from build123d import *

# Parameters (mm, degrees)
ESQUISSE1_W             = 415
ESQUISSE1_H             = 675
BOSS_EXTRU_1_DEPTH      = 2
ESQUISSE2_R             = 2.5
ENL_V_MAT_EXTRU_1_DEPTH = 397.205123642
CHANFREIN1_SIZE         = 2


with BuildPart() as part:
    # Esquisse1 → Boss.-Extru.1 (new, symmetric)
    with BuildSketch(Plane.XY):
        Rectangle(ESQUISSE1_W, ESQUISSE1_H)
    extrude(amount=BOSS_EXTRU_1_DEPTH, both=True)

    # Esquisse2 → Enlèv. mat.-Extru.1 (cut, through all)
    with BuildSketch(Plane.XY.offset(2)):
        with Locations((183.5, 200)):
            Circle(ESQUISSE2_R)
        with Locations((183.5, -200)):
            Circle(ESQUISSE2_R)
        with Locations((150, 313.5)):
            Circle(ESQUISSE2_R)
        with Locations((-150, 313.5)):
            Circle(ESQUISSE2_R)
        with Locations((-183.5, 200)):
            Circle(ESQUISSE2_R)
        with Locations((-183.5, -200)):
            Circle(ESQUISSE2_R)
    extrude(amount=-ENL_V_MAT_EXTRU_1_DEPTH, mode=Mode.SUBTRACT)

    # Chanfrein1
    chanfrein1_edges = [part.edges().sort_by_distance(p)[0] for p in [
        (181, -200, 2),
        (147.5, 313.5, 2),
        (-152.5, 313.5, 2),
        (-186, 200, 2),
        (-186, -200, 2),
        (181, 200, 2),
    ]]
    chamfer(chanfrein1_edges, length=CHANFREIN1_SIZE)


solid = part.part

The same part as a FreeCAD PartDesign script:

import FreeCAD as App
import Part
import Sketcher
from FreeCAD import Vector


def edges_at(feature, points):
    """Names of the edges that pass closest to the given points."""
    edges = feature.Shape.Edges
    near = lambda p: min(range(len(edges)), key=lambda i: edges[i].distToShape(Part.Vertex(*p))[0])
    return sorted({f"Edge{near(p) + 1}" for p in points})


def add_polygon(sketch, points):
    """Adds a closed chain of lines whose ends are joined by coincident constraints."""
    first, n = sketch.GeometryCount, len(points)
    for a, b in zip(points, points[1:] + points[:1]):
        sketch.addGeometry(Part.LineSegment(App.Vector(*a, 0), App.Vector(*b, 0)), False)
    for i in range(n):
        sketch.addConstraint(Sketcher.Constraint("Coincident", first + i, 2, first + (i + 1) % n, 1))

doc = App.newDocument("Part")
body = doc.addObject("PartDesign::Body", "Body")

sketch1 = doc.addObject("Sketcher::SketchObject", "Sketch")
body.addObject(sketch1)
sketch1.AttachmentSupport = (doc.XY_Plane, [""])
sketch1.MapMode = "FlatFace"
add_polygon(sketch1, [(-208, 338), (-208, -338), (208, -338), (208, 338)])
sketch1.addConstraint([
    Sketcher.Constraint("Vertical", 0),
    Sketcher.Constraint("Horizontal", 1),
    Sketcher.Constraint("Vertical", 2),
    Sketcher.Constraint("Horizontal", 3),
    Sketcher.Constraint("Symmetric", 0, 2, 2, 2, -1, 1),
    Sketcher.Constraint("DistanceX", 1, 1, 1, 2, 415.0),
    Sketcher.Constraint("DistanceY", 0, 2, 0, 1, 675.0),
])
pad1 = doc.addObject("PartDesign::Pad", "Pad")
body.addObject(pad1)
pad1.Profile = sketch1
pad1.Length = 4
pad1.Midplane = True

sketch2 = doc.addObject("Sketcher::SketchObject", "Sketch001")
body.addObject(sketch2)
sketch2.AttachmentSupport = (doc.XY_Plane, [""])
sketch2.MapMode = "FlatFace"
sketch2.AttachmentOffset = App.Placement(Vector(0, 0, 2), App.Rotation())
sketch2.addGeometry([
    Part.Circle(Vector(183.5, 200, 0), Vector(0, 0, 1), 2.5),
    Part.Circle(Vector(183.5, -200, 0), Vector(0, 0, 1), 2.5),
    Part.Circle(Vector(150, 313.5, 0), Vector(0, 0, 1), 2.5),
    Part.Circle(Vector(-150, 313.5, 0), Vector(0, 0, 1), 2.5),
    Part.Circle(Vector(-183.5, 200, 0), Vector(0, 0, 1), 2.5),
    Part.Circle(Vector(-183.5, -200, 0), Vector(0, 0, 1), 2.5),
], False)
sketch2.addConstraint([
    Sketcher.Constraint("Equal", 0, 1),
    Sketcher.Constraint("Equal", 1, 2),
    Sketcher.Constraint("Equal", 2, 3),
    Sketcher.Constraint("Equal", 3, 4),
    Sketcher.Constraint("Equal", 4, 5),
    Sketcher.Constraint("Symmetric", 1, 3, 4, 3, -1, 1),
    Sketcher.Constraint("Symmetric", 0, 3, 5, 3, -1, 1),
    Sketcher.Constraint("Symmetric", 2, 3, 3, 3, -2),
    Sketcher.Constraint("Symmetric", 0, 3, 4, 3, -2),
    Sketcher.Constraint("Diameter", 0, 5.0),
    Sketcher.Constraint("DistanceY", -1, 1, 0, 3, 200.0),
    Sketcher.Constraint("DistanceX", -1, 1, 2, 3, 150.0),
    Sketcher.Constraint("DistanceX", 4, 3, 0, 3, 367.0),
    Sketcher.Constraint("DistanceY", -1, 1, 2, 3, 313.5),
])
pocket1 = doc.addObject("PartDesign::Pocket", "Pocket")
body.addObject(pocket1)
pocket1.Profile = sketch2
pocket1.Type = "ThroughAll"
doc.recompute()

chamfer = doc.addObject("PartDesign::Chamfer", "Chamfer")
body.addObject(chamfer)
chamfer.Base = (pocket1, edges_at(pocket1, [
    (181, -200, 2),
    (147.5, 313.5, 2),
    (-152.5, 313.5, 2),
    (-186, 200, 2),
    (-186, -200, 2),
    (181, 200, 2),
]))
chamfer.Size = 2

doc.recompute()
